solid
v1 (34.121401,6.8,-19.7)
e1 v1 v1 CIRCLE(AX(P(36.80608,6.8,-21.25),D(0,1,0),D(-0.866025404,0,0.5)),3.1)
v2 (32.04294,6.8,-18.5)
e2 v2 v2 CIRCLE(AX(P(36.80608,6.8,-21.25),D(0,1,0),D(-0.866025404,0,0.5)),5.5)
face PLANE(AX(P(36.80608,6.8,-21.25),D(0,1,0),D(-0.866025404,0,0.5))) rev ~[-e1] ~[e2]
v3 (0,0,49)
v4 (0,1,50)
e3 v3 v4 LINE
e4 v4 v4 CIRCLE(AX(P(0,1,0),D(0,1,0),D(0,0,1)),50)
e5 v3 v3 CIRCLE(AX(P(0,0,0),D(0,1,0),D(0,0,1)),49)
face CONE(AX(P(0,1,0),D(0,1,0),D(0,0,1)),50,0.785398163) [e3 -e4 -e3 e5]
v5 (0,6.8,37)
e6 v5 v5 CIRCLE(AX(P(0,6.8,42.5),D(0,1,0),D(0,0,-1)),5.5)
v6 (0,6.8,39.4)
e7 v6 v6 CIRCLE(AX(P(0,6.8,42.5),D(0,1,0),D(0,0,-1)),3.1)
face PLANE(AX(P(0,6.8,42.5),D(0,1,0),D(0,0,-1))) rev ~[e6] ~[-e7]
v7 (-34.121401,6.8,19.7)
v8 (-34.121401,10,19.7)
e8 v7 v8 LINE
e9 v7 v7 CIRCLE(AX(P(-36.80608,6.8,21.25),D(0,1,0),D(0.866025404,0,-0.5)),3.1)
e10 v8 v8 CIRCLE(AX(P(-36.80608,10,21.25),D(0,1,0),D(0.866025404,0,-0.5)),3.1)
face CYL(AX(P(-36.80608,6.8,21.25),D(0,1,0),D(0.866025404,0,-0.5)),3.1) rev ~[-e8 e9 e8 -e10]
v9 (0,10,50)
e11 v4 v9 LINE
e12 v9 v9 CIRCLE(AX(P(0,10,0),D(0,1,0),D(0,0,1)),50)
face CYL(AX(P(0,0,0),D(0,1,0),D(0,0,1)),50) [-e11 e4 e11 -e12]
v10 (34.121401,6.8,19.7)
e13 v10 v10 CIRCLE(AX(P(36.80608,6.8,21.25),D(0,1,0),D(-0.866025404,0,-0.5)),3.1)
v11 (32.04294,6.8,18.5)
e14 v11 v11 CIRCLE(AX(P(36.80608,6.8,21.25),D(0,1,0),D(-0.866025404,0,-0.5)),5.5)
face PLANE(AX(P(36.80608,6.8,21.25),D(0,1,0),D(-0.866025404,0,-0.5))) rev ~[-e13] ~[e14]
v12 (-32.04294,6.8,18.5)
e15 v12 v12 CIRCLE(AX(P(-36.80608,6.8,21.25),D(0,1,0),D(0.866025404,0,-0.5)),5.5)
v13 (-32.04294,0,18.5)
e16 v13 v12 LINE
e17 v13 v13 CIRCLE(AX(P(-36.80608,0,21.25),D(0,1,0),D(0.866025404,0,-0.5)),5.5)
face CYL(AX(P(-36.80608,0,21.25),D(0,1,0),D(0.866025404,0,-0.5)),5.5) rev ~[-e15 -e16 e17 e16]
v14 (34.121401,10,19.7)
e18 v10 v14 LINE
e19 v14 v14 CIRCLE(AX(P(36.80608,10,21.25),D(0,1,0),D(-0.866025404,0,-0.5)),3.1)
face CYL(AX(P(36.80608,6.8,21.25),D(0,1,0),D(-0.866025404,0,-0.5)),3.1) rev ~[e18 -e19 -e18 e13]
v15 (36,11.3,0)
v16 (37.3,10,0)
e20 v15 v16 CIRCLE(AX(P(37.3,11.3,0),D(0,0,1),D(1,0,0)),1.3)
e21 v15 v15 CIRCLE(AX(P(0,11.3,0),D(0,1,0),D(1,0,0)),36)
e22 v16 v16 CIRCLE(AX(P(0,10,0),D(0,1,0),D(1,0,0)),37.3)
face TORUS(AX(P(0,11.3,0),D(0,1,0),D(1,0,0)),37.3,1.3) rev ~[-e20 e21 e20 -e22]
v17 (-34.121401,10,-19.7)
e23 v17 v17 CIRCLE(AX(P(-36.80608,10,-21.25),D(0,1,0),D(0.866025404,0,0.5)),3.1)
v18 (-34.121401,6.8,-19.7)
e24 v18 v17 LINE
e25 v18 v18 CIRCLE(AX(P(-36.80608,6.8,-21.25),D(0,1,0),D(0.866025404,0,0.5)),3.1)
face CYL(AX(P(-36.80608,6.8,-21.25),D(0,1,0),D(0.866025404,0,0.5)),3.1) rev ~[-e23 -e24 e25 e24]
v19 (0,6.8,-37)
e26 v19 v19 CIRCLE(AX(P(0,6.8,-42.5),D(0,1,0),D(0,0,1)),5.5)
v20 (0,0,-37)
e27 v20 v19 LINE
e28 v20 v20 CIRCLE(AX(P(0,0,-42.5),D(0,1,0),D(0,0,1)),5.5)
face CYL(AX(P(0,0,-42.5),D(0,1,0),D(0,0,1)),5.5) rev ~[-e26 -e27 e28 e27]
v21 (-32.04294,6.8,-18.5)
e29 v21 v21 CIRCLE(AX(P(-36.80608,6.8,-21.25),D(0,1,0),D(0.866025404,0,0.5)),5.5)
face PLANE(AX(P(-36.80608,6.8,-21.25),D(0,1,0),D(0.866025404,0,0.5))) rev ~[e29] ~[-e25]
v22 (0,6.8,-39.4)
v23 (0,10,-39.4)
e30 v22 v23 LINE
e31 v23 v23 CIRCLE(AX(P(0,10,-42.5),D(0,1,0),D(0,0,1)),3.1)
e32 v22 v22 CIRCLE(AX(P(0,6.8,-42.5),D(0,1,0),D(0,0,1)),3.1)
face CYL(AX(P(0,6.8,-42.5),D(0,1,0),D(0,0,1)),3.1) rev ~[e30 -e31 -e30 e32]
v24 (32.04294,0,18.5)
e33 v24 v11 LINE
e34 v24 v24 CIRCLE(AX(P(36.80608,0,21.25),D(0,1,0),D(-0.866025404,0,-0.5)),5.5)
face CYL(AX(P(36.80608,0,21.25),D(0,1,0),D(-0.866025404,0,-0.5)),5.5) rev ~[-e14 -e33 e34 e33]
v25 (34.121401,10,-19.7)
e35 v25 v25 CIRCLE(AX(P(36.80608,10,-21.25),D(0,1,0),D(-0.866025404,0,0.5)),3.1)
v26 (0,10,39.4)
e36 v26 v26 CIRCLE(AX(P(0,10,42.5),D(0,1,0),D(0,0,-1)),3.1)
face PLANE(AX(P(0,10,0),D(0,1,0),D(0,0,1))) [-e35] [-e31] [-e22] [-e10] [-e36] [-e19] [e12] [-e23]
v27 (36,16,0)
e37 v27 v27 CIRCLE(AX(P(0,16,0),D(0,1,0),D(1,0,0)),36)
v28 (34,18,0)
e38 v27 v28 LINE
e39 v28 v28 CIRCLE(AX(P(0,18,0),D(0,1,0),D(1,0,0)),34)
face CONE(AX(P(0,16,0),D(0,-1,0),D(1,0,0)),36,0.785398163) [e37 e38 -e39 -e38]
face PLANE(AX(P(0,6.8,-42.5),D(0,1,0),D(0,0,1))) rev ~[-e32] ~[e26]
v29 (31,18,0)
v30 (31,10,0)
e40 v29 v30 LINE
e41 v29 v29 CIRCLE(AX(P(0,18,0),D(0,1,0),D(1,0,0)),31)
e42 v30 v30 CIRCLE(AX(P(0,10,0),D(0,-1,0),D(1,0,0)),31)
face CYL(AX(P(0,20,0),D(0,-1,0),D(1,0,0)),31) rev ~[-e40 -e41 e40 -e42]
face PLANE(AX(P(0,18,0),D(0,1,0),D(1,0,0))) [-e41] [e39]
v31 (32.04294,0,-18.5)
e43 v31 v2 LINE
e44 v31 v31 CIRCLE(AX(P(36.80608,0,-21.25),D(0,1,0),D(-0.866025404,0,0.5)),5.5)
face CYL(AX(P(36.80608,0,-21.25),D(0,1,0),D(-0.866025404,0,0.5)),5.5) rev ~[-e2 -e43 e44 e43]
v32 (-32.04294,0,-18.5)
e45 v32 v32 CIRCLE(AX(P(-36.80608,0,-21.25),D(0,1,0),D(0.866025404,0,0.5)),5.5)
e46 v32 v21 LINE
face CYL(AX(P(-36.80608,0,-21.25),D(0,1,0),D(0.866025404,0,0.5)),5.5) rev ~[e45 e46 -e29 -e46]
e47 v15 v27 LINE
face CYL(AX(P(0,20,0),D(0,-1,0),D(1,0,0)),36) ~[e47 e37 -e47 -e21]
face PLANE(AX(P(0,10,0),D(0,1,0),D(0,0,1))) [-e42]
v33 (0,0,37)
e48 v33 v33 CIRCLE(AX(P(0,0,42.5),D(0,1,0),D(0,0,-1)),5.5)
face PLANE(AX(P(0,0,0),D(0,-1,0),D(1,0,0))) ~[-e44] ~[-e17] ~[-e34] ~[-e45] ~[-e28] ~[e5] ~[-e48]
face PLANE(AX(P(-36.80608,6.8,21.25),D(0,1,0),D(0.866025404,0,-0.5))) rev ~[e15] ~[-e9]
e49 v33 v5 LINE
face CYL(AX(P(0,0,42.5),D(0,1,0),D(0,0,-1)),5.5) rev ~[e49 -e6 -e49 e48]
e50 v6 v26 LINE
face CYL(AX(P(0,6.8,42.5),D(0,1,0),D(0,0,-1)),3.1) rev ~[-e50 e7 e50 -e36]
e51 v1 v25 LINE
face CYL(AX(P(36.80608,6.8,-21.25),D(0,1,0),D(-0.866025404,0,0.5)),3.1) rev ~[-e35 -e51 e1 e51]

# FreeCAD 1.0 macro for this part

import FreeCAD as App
import Part
import Sketcher
Q = App.Units.Quantity


def edges_at(feature, points):
    """Names of the edges that pass closest to the given points."""
    edges = feature.Shape.Edges
    near = lambda p: min(range(len(edges)), key=lambda i: edges[i].distToShape(Part.Vertex(*p))[0])
    return sorted({f"Edge{near(p) + 1}" for p in points})


def add_polygon(sketch, points):
    """Adds a closed chain of lines whose ends are joined by coincident constraints."""
    first, n = sketch.GeometryCount, len(points)
    for a, b in zip(points, points[1:] + points[:1]):
        sketch.addGeometry(Part.LineSegment(App.Vector(*a, 0), App.Vector(*b, 0)), False)
    for i in range(n):
        sketch.addConstraint(Sketcher.Constraint("Coincident", first + i, 2, first + (i + 1) % n, 1))

doc = App.newDocument("Part")
body = doc.addObject("PartDesign::Body", "Body")

# Sketch on XY plane
sketch1 = body.newObject("Sketcher::SketchObject", "Sketch")
sketch1.AttachmentSupport = (doc.getObject("XY_Plane"), [""])
sketch1.MapMode = "FlatFace"
add_polygon(sketch1, [(31, 5), (0, 5), (0, 0), (36, 0), (36, 20), (31, 20)])  # lines 0-5
sketch1.addConstraint(Sketcher.Constraint("Horizontal", 0))
sketch1.addConstraint(Sketcher.Constraint("Vertical", 1))
sketch1.addConstraint(Sketcher.Constraint("Horizontal", 2))
sketch1.addConstraint(Sketcher.Constraint("Vertical", 3))
sketch1.addConstraint(Sketcher.Constraint("Horizontal", 4))
sketch1.addConstraint(Sketcher.Constraint("Vertical", 5))
sketch1.addConstraint(Sketcher.Constraint("Coincident", 1, 2, -1, 1))
sketch1.addConstraint(Sketcher.Constraint("Equal", 4, 1))
sketch1.addConstraint(Sketcher.Constraint("DistanceX", 2, 1, 2, 2, Q("36 mm")))
sketch1.addConstraint(Sketcher.Constraint("DistanceX", 4, 2, 4, 1, Q("5 mm")))
sketch1.addConstraint(Sketcher.Constraint("DistanceY", 3, 1, 3, 2, Q("20 mm")))
revolution = body.newObject("PartDesign::Revolution", "Revolution")
revolution.Profile = sketch1
revolution.ReferenceAxis = (sketch1, ["V_Axis"])
revolution.Angle = 360

# Sketch on YZ plane
sketch2 = body.newObject("Sketcher::SketchObject", "Sketch001")
sketch2.AttachmentSupport = (doc.getObject("YZ_Plane"), [""])
sketch2.MapMode = "FlatFace"
add_polygon(sketch2, [(0, 0), (10, 0), (10, 50), (0, 50)])  # lines 0-3
sketch2.addConstraint(Sketcher.Constraint("Horizontal", 0))
sketch2.addConstraint(Sketcher.Constraint("Vertical", 1))
sketch2.addConstraint(Sketcher.Constraint("Horizontal", 2))
sketch2.addConstraint(Sketcher.Constraint("Vertical", 3))
sketch2.addConstraint(Sketcher.Constraint("Coincident", 3, 2, -1, 1))
sketch2.addConstraint(Sketcher.Constraint("DistanceX", 0, 1, 0, 2, Q("10 mm")))
sketch2.addConstraint(Sketcher.Constraint("DistanceY", 1, 1, 1, 2, Q("50 mm")))
revolution2 = body.newObject("PartDesign::Revolution", "Revolution001")
revolution2.Profile = sketch2
revolution2.ReferenceAxis = (sketch2, ["H_Axis"])
revolution2.Angle = 360
doc.recompute()

chamfer = body.newObject("PartDesign::Chamfer", "Chamfer")
chamfer.Base = (revolution2, edges_at(revolution2, [(0, 0, -50)]))
chamfer.Size = 1

# Sketch on XZ plane
sketch3 = body.newObject("Sketcher::SketchObject", "Sketch002")
sketch3.AttachmentSupport = (doc.getObject("XZ_Plane"), [""])
sketch3.MapMode = "FlatFace"
sketch3.addGeometry(Part.Circle(App.Vector(0, 42.5, 0), App.Vector(0, 0, 1), 3.1), False)
sketch3.addConstraint(Sketcher.Constraint("PointOnObject", 0, 3, -2))
sketch3.addConstraint(Sketcher.Constraint("Diameter", 0, Q("6.2 mm")))
sketch3.addConstraint(Sketcher.Constraint("DistanceY", -1, 1, 0, 3, Q("42.5 mm")))
doc.recompute()
hole = body.newObject("PartDesign::Hole", "Hole")
hole.Profile = sketch3
hole.ThreadType = "None"
hole.Diameter = 6.2
hole.DepthType = "Dimension"
hole.Depth = 15
hole.DrillPoint = "Angled"
hole.DrillPointAngle = 118
hole.HoleCutType = "Counterbore"
hole.HoleCutDiameter = 11
hole.HoleCutDepth = 6.8
doc.recompute()

polarpattern = body.newObject("PartDesign::PolarPattern", "PolarPattern")
polarpattern.Originals = [hole]
polarpattern.Axis = (doc.getObject("Y_Axis"), [""])
polarpattern.Angle = 360
polarpattern.Occurrences = 6
body.Tip = polarpattern

# Sketch on XZ plane
sketch4 = body.newObject("Sketcher::SketchObject", "Sketch003")
sketch4.AttachmentSupport = (doc.getObject("XZ_Plane"), [""])
sketch4.MapMode = "FlatFace"
sketch4.AttachmentOffset = App.Placement(App.Vector(0, 0, -20), App.Rotation())
sketch4.addGeometry(Part.Circle(App.Vector(0, 0, 0), App.Vector(0, 0, 1), 36), False)
sketch4.addGeometry(Part.Circle(App.Vector(0, 0, 0), App.Vector(0, 0, 1), 31), False)
sketch4.addConstraint(Sketcher.Constraint("Coincident", 0, 3, -1, 1))
sketch4.addConstraint(Sketcher.Constraint("Coincident", 1, 3, -1, 1))
sketch4.addConstraint(Sketcher.Constraint("Diameter", 0, Q("72 mm")))
sketch4.addConstraint(Sketcher.Constraint("Diameter", 1, Q("62 mm")))
pad1 = body.newObject("PartDesign::Pad", "Pad")
pad1.Profile = sketch4
pad1.Length = 1
pad1.Reversed = True
doc.recompute()

fillet = body.newObject("PartDesign::Fillet", "Fillet")
fillet.Base = (pad1, edges_at(pad1, [(-36, 10, 0)]))
fillet.Radius = 1.3

# Sketch on XZ plane
sketch5 = body.newObject("Sketcher::SketchObject", "Sketch004")
sketch5.AttachmentSupport = (doc.getObject("XZ_Plane"), [""])
sketch5.MapMode = "FlatFace"
sketch5.AttachmentOffset = App.Placement(App.Vector(0, 0, -21), App.Rotation())
sketch5.addGeometry(Part.Circle(App.Vector(0, 0, 0), App.Vector(0, 0, 1), 36), False)
sketch5.addGeometry(Part.Circle(App.Vector(0, 0, 0), App.Vector(0, 0, 1), 31), False)
sketch5.addConstraint(Sketcher.Constraint("Coincident", 0, 3, -1, 1))
sketch5.addConstraint(Sketcher.Constraint("Coincident", 1, 3, -1, 1))
sketch5.addConstraint(Sketcher.Constraint("Diameter", 0, Q("72 mm")))
sketch5.addConstraint(Sketcher.Constraint("Diameter", 1, Q("62 mm")))
pocket1 = body.newObject("PartDesign::Pocket", "Pocket")
pocket1.Profile = sketch5
pocket1.Length = 3
pocket1.Reversed = True
doc.recompute()

chamfer2 = body.newObject("PartDesign::Chamfer", "Chamfer001")
chamfer2.Base = (pocket1, edges_at(pocket1, [(-36, 18, 0)]))
chamfer2.Size = 2

doc.recompute()
